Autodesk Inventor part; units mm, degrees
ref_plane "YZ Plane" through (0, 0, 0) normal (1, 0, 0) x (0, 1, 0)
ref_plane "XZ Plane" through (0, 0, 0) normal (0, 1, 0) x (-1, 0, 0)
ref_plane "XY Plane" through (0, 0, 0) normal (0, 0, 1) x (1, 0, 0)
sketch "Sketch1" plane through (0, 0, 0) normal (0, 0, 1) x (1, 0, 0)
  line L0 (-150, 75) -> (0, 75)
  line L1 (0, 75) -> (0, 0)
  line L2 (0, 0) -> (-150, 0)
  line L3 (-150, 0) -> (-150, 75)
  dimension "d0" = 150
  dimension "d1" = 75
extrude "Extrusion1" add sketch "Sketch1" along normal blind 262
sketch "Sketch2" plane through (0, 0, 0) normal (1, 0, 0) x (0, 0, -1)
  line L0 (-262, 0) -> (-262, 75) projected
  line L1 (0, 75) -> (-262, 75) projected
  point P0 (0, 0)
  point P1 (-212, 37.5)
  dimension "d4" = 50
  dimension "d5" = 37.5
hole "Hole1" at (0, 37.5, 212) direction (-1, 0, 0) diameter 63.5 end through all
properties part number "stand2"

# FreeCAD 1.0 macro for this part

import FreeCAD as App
import Part
import Sketcher
Q = App.Units.Quantity


def add_polygon(sketch, points):
    """Adds a closed chain of lines whose ends are joined by coincident constraints."""
    first, n = sketch.GeometryCount, len(points)
    for a, b in zip(points, points[1:] + points[:1]):
        sketch.addGeometry(Part.LineSegment(App.Vector(*a, 0), App.Vector(*b, 0)), False)
    for i in range(n):
        sketch.addConstraint(Sketcher.Constraint("Coincident", first + i, 2, first + (i + 1) % n, 1))

doc = App.newDocument("Part")
body = doc.addObject("PartDesign::Body", "Body")

# Sketch on XY plane
sketch1 = doc.addObject("Sketcher::SketchObject", "Sketch")
body.addObject(sketch1)
sketch1.AttachmentSupport = (doc.XY_Plane, [""])
sketch1.MapMode = "FlatFace"
add_polygon(sketch1, [(0, 75), (-150, 75), (-150, 0), (0, 0)])  # lines 0-3
sketch1.addConstraint([
    Sketcher.Constraint("Horizontal", 0),
    Sketcher.Constraint("Vertical", 1),
    Sketcher.Constraint("Horizontal", 2),
    Sketcher.Constraint("Vertical", 3),
    Sketcher.Constraint("Coincident", 2, 2, -1, 1),
    Sketcher.Constraint("DistanceX", 0, 2, 0, 1, Q("150 mm")),
    Sketcher.Constraint("DistanceY", 1, 2, 1, 1, Q("75 mm")),
])
pad1 = doc.addObject("PartDesign::Pad", "Pad")
body.addObject(pad1)
pad1.Profile = sketch1
pad1.Length = 262

# Sketch on YZ plane
sketch2 = doc.addObject("Sketcher::SketchObject", "Sketch001")
body.addObject(sketch2)
sketch2.AttachmentSupport = (doc.YZ_Plane, [""])
sketch2.MapMode = "FlatFace"
sketch2.addGeometry(Part.Circle(App.Vector(37.5, 212, 0), App.Vector(0, 0, 1), 31.75), False)
sketch2.addConstraint([
    Sketcher.Constraint("Diameter", 0, Q("63.5 mm")),
    Sketcher.Constraint("DistanceY", -1, 1, 0, 3, Q("212 mm")),
    Sketcher.Constraint("DistanceX", -1, 1, 0, 3, Q("37.5 mm")),
])
doc.recompute()
hole = doc.addObject("PartDesign::Hole", "Hole")
body.addObject(hole)
hole.Profile = sketch2
hole.ThreadType = "None"
hole.Diameter = 63.5
hole.DepthType = "ThroughAll"

doc.recompute()
